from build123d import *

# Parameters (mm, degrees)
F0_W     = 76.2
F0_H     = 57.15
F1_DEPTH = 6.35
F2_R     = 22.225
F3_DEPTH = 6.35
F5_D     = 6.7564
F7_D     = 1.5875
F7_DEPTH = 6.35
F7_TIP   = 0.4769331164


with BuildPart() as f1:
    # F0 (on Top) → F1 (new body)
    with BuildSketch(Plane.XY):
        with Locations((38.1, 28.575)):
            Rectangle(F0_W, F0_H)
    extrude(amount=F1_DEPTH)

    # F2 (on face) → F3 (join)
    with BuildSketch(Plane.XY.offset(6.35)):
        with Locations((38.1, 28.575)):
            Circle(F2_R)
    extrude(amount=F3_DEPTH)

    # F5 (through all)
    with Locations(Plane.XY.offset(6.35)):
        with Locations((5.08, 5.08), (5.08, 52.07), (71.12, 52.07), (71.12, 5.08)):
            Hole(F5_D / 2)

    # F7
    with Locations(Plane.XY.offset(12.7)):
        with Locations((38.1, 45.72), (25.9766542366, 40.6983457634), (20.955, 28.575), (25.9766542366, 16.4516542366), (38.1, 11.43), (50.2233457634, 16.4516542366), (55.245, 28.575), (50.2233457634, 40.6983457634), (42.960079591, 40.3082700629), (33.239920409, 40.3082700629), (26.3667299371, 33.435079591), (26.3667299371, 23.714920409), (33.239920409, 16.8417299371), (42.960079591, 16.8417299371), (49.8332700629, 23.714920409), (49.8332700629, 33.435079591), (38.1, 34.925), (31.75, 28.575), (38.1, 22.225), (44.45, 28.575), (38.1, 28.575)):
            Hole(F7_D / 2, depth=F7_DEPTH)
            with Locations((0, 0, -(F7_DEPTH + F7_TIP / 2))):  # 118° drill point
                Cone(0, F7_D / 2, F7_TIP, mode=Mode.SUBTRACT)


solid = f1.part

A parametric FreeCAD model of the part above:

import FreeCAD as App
import Part
import Sketcher
Q = App.Units.Quantity


def add_polygon(sketch, points):
    """Adds a closed chain of lines whose ends are joined by coincident constraints."""
    first, n = sketch.GeometryCount, len(points)
    for a, b in zip(points, points[1:] + points[:1]):
        sketch.addGeometry(Part.LineSegment(App.Vector(*a, 0), App.Vector(*b, 0)), False)
    for i in range(n):
        sketch.addConstraint(Sketcher.Constraint("Coincident", first + i, 2, first + (i + 1) % n, 1))

doc = App.newDocument("Part")
body = doc.addObject("PartDesign::Body", "Body")

# Sketch on XY plane
sketch1 = doc.addObject("Sketcher::SketchObject", "Sketch")
body.addObject(sketch1)
sketch1.AttachmentSupport = (doc.XY_Plane, [""])
sketch1.MapMode = "FlatFace"
add_polygon(sketch1, [(0, 57), (0, 0), (76, 0), (76, 57)])  # lines 0-3
sketch1.addConstraint(Sketcher.Constraint("Vertical", 0))
sketch1.addConstraint(Sketcher.Constraint("Horizontal", 1))
sketch1.addConstraint(Sketcher.Constraint("Vertical", 2))
sketch1.addConstraint(Sketcher.Constraint("Horizontal", 3))
sketch1.addConstraint(Sketcher.Constraint("Coincident", 0, 2, -1, 1))
sketch1.addConstraint(Sketcher.Constraint("DistanceX", 1, 1, 1, 2, Q("3 in")))
sketch1.addConstraint(Sketcher.Constraint("DistanceY", 0, 2, 0, 1, Q("2.25 in")))
pad1 = doc.addObject("PartDesign::Pad", "Pad")
body.addObject(pad1)
pad1.Profile = sketch1
pad1.Length = Q("0.25 in")

# Sketch on XY plane
sketch2 = doc.addObject("Sketcher::SketchObject", "Sketch001")
body.addObject(sketch2)
sketch2.AttachmentSupport = (doc.XY_Plane, [""])
sketch2.MapMode = "FlatFace"
sketch2.AttachmentOffset = App.Placement(App.Vector(0, 0, 0.25 * 25.4), App.Rotation())
sketch2.addGeometry(Part.Circle(App.Vector(38, 29, 0), App.Vector(0, 0, 1), 22), False)
sketch2.addConstraint(Sketcher.Constraint("Diameter", 0, Q("1.75 in")))
sketch2.addConstraint(Sketcher.Constraint("DistanceX", -1, 1, 0, 3, Q("1.5 in")))
sketch2.addConstraint(Sketcher.Constraint("DistanceY", -1, 1, 0, 3, Q("1.125 in")))
pad2 = doc.addObject("PartDesign::Pad", "Pad001")
body.addObject(pad2)
pad2.Profile = sketch2
pad2.Length = Q("0.25 in")

# Sketch on XY plane
sketch3 = doc.addObject("Sketcher::SketchObject", "Sketch002")
body.addObject(sketch3)
sketch3.AttachmentSupport = (doc.XY_Plane, [""])
sketch3.MapMode = "FlatFace"
sketch3.AttachmentOffset = App.Placement(App.Vector(0, 0, 0.25 * 25.4), App.Rotation())
sketch3.addGeometry(Part.Circle(App.Vector(5.1, 5.1, 0), App.Vector(0, 0, 1), 3.4), False)
sketch3.addGeometry(Part.Circle(App.Vector(5.1, 52.1, 0), App.Vector(0, 0, 1), 3.4), False)
sketch3.addGeometry(Part.Circle(App.Vector(71.1, 52.1, 0), App.Vector(0, 0, 1), 3.4), False)
sketch3.addGeometry(Part.Circle(App.Vector(71.1, 5.1, 0), App.Vector(0, 0, 1), 3.4), False)
sketch3.addConstraint(Sketcher.Constraint("Equal", 0, 1))
sketch3.addConstraint(Sketcher.Constraint("Equal", 1, 2))
sketch3.addConstraint(Sketcher.Constraint("Equal", 2, 3))
sketch3.addConstraint(Sketcher.Constraint("Horizontal", 1, 3, 2, 3))
sketch3.addConstraint(Sketcher.Constraint("Horizontal", 0, 3, 3, 3))
sketch3.addConstraint(Sketcher.Constraint("Vertical", 0, 3, 1, 3))
sketch3.addConstraint(Sketcher.Constraint("Vertical", 2, 3, 3, 3))
sketch3.addConstraint(Sketcher.Constraint("Diameter", 0, Q("0.266 in")))
sketch3.addConstraint(Sketcher.Constraint("DistanceX", -1, 1, 0, 3, Q("0.2 in")))
sketch3.addConstraint(Sketcher.Constraint("DistanceY", -1, 1, 0, 3, Q("0.2 in")))
sketch3.addConstraint(Sketcher.Constraint("DistanceX", -1, 1, 2, 3, Q("2.8 in")))
sketch3.addConstraint(Sketcher.Constraint("DistanceY", -1, 1, 1, 3, Q("2.05 in")))
doc.recompute()
hole = doc.addObject("PartDesign::Hole", "Hole")
body.addObject(hole)
hole.Profile = sketch3
hole.ThreadType = "None"
hole.Diameter = Q("0.266 in")
hole.DepthType = "ThroughAll"

# Sketch on XY plane
sketch4 = doc.addObject("Sketcher::SketchObject", "Sketch003")
body.addObject(sketch4)
sketch4.AttachmentSupport = (doc.XY_Plane, [""])
sketch4.MapMode = "FlatFace"
sketch4.AttachmentOffset = App.Placement(App.Vector(0, 0, 0.5 * 25.4), App.Rotation())
sketch4.addGeometry(Part.Circle(App.Vector(38.1, 45.7, 0), App.Vector(0, 0, 1), 0.8), False)
sketch4.addGeometry(Part.Circle(App.Vector(26, 40.7, 0), App.Vector(0, 0, 1), 0.8), False)
sketch4.addGeometry(Part.Circle(App.Vector(21, 28.6, 0), App.Vector(0, 0, 1), 0.8), False)
sketch4.addGeometry(Part.Circle(App.Vector(26, 16.5, 0), App.Vector(0, 0, 1), 0.8), False)
sketch4.addGeometry(Part.Circle(App.Vector(38.1, 11.4, 0), App.Vector(0, 0, 1), 0.8), False)
sketch4.addGeometry(Part.Circle(App.Vector(50.2, 16.5, 0), App.Vector(0, 0, 1), 0.8), False)
sketch4.addGeometry(Part.Circle(App.Vector(55.2, 28.6, 0), App.Vector(0, 0, 1), 0.8), False)
sketch4.addGeometry(Part.Circle(App.Vector(50.2, 40.7, 0), App.Vector(0, 0, 1), 0.8), False)
sketch4.addGeometry(Part.Circle(App.Vector(43, 40.3, 0), App.Vector(0, 0, 1), 0.8), False)
sketch4.addGeometry(Part.Circle(App.Vector(33.2, 40.3, 0), App.Vector(0, 0, 1), 0.8), False)
sketch4.addGeometry(Part.Circle(App.Vector(26.4, 33.4, 0), App.Vector(0, 0, 1), 0.8), False)
sketch4.addGeometry(Part.Circle(App.Vector(26.4, 23.7, 0), App.Vector(0, 0, 1), 0.8), False)
sketch4.addGeometry(Part.Circle(App.Vector(33.2, 16.8, 0), App.Vector(0, 0, 1), 0.8), False)
sketch4.addGeometry(Part.Circle(App.Vector(43, 16.8, 0), App.Vector(0, 0, 1), 0.8), False)
sketch4.addGeometry(Part.Circle(App.Vector(49.8, 23.7, 0), App.Vector(0, 0, 1), 0.8), False)
sketch4.addGeometry(Part.Circle(App.Vector(49.8, 33.4, 0), App.Vector(0, 0, 1), 0.8), False)
sketch4.addGeometry(Part.Circle(App.Vector(38.1, 34.9, 0), App.Vector(0, 0, 1), 0.8), False)
sketch4.addGeometry(Part.Circle(App.Vector(31.8, 28.6, 0), App.Vector(0, 0, 1), 0.8), False)
sketch4.addGeometry(Part.Circle(App.Vector(38.1, 22.2, 0), App.Vector(0, 0, 1), 0.8), False)
sketch4.addGeometry(Part.Circle(App.Vector(44.5, 28.6, 0), App.Vector(0, 0, 1), 0.8), False)
sketch4.addGeometry(Part.Circle(App.Vector(38.1, 28.6, 0), App.Vector(0, 0, 1), 0.8), False)
sketch4.addConstraint(Sketcher.Constraint("Equal", 0, 1))
sketch4.addConstraint(Sketcher.Constraint("Equal", 1, 2))
sketch4.addConstraint(Sketcher.Constraint("Equal", 2, 3))
sketch4.addConstraint(Sketcher.Constraint("Equal", 3, 4))
sketch4.addConstraint(Sketcher.Constraint("Equal", 4, 5))
sketch4.addConstraint(Sketcher.Constraint("Equal", 5, 6))
sketch4.addConstraint(Sketcher.Constraint("Equal", 6, 7))
sketch4.addConstraint(Sketcher.Constraint("Equal", 7, 8))
sketch4.addConstraint(Sketcher.Constraint("Equal", 8, 9))
sketch4.addConstraint(Sketcher.Constraint("Equal", 9, 10))
sketch4.addConstraint(Sketcher.Constraint("Equal", 10, 11))
sketch4.addConstraint(Sketcher.Constraint("Equal", 11, 12))
sketch4.addConstraint(Sketcher.Constraint("Equal", 12, 13))
sketch4.addConstraint(Sketcher.Constraint("Equal", 13, 14))
sketch4.addConstraint(Sketcher.Constraint("Equal", 14, 15))
sketch4.addConstraint(Sketcher.Constraint("Equal", 15, 16))
sketch4.addConstraint(Sketcher.Constraint("Equal", 16, 17))
sketch4.addConstraint(Sketcher.Constraint("Equal", 17, 18))
sketch4.addConstraint(Sketcher.Constraint("Equal", 18, 19))
sketch4.addConstraint(Sketcher.Constraint("Equal", 19, 20))
sketch4.addConstraint(Sketcher.Constraint("Horizontal", 3, 3, 5, 3))
sketch4.addConstraint(Sketcher.Constraint("Horizontal", 2, 3, 6, 3))
sketch4.addConstraint(Sketcher.Constraint("Horizontal", 1, 3, 7, 3))
sketch4.addConstraint(Sketcher.Constraint("Horizontal", 8, 3, 9, 3))
sketch4.addConstraint(Sketcher.Constraint("Horizontal", 12, 3, 13, 3))
sketch4.addConstraint(Sketcher.Constraint("Horizontal", 11, 3, 14, 3))
sketch4.addConstraint(Sketcher.Constraint("Horizontal", 10, 3, 15, 3))
sketch4.addConstraint(Sketcher.Constraint("Horizontal", 6, 3, 17, 3))
sketch4.addConstraint(Sketcher.Constraint("Horizontal", 17, 3, 19, 3))
sketch4.addConstraint(Sketcher.Constraint("Horizontal", 19, 3, 20, 3))
sketch4.addConstraint(Sketcher.Constraint("Vertical", 1, 3, 3, 3))
sketch4.addConstraint(Sketcher.Constraint("Vertical", 0, 3, 4, 3))
sketch4.addConstraint(Sketcher.Constraint("Vertical", 5, 3, 7, 3))
sketch4.addConstraint(Sketcher.Constraint("Vertical", 10, 3, 11, 3))
sketch4.addConstraint(Sketcher.Constraint("Vertical", 9, 3, 12, 3))
sketch4.addConstraint(Sketcher.Constraint("Vertical", 8, 3, 13, 3))
sketch4.addConstraint(Sketcher.Constraint("Vertical", 14, 3, 15, 3))
sketch4.addConstraint(Sketcher.Constraint("Vertical", 4, 3, 16, 3))
sketch4.addConstraint(Sketcher.Constraint("Vertical", 16, 3, 18, 3))
sketch4.addConstraint(Sketcher.Constraint("Vertical", 18, 3, 20, 3))
sketch4.addConstraint(Sketcher.Constraint("Diameter", 0, Q("0.0625 in")))
sketch4.addConstraint(Sketcher.Constraint("DistanceX", -1, 1, 0, 3, Q("1.5 in")))
sketch4.addConstraint(Sketcher.Constraint("DistanceY", -1, 1, 0, 3, Q("1.8 in")))
sketch4.addConstraint(Sketcher.Constraint("DistanceY", -1, 1, 4, 3, Q("0.45 in")))
sketch4.addConstraint(Sketcher.Constraint("DistanceX", -1, 1, 17, 3, Q("1.25 in")))
sketch4.addConstraint(Sketcher.Constraint("DistanceX", -1, 1, 19, 3, Q("1.75 in")))
sketch4.addConstraint(Sketcher.Constraint("DistanceY", 17, 3, 16, 3, Q("0.25 in")))
sketch4.addConstraint(Sketcher.Constraint("DistanceY", 18, 3, 17, 3, Q("0.25 in")))
sketch4.addConstraint(Sketcher.Constraint("DistanceX", -1, 1, 2, 3, Q("0.825 in")))
sketch4.addConstraint(Sketcher.Constraint("DistanceY", -1, 1, 2, 3, Q("1.125 in")))
sketch4.addConstraint(Sketcher.Constraint("DistanceX", -1, 1, 6, 3, Q("2.175 in")))
sketch4.addConstraint(Sketcher.Constraint("DistanceX", -1, 1, 8, 3, 42.96008))
sketch4.addConstraint(Sketcher.Constraint("DistanceY", -1, 1, 8, 3, 40.30827))
sketch4.addConstraint(Sketcher.Constraint("DistanceX", -1, 1, 9, 3, 33.23992))
sketch4.addConstraint(Sketcher.Constraint("DistanceX", -1, 1, 10, 3, 26.36673))
sketch4.addConstraint(Sketcher.Constraint("DistanceY", -1, 1, 10, 3, 33.43508))
sketch4.addConstraint(Sketcher.Constraint("DistanceY", -1, 1, 11, 3, 23.71492))
sketch4.addConstraint(Sketcher.Constraint("DistanceY", -1, 1, 12, 3, 16.84173))
sketch4.addConstraint(Sketcher.Constraint("DistanceX", -1, 1, 14, 3, 49.83327))
sketch4.addConstraint(Sketcher.Constraint("DistanceY", 3, 3, 1, 3, 24.246692))
sketch4.addConstraint(Sketcher.Constraint("DistanceX", 3, 3, 5, 3, 24.246692))
sketch4.addConstraint(Sketcher.Constraint("DistanceX", -1, 1, 1, 3, 25.976654))
sketch4.addConstraint(Sketcher.Constraint("DistanceY", -1, 1, 1, 3, 40.698346))
doc.recompute()
hole2 = doc.addObject("PartDesign::Hole", "Hole001")
body.addObject(hole2)
hole2.Profile = sketch4
hole2.ThreadType = "None"
hole2.Diameter = Q("0.0625 in")
hole2.DepthType = "Dimension"
hole2.Depth = Q("0.25 in")
hole2.DrillPoint = "Angled"
hole2.DrillPointAngle = 118

doc.recompute()
